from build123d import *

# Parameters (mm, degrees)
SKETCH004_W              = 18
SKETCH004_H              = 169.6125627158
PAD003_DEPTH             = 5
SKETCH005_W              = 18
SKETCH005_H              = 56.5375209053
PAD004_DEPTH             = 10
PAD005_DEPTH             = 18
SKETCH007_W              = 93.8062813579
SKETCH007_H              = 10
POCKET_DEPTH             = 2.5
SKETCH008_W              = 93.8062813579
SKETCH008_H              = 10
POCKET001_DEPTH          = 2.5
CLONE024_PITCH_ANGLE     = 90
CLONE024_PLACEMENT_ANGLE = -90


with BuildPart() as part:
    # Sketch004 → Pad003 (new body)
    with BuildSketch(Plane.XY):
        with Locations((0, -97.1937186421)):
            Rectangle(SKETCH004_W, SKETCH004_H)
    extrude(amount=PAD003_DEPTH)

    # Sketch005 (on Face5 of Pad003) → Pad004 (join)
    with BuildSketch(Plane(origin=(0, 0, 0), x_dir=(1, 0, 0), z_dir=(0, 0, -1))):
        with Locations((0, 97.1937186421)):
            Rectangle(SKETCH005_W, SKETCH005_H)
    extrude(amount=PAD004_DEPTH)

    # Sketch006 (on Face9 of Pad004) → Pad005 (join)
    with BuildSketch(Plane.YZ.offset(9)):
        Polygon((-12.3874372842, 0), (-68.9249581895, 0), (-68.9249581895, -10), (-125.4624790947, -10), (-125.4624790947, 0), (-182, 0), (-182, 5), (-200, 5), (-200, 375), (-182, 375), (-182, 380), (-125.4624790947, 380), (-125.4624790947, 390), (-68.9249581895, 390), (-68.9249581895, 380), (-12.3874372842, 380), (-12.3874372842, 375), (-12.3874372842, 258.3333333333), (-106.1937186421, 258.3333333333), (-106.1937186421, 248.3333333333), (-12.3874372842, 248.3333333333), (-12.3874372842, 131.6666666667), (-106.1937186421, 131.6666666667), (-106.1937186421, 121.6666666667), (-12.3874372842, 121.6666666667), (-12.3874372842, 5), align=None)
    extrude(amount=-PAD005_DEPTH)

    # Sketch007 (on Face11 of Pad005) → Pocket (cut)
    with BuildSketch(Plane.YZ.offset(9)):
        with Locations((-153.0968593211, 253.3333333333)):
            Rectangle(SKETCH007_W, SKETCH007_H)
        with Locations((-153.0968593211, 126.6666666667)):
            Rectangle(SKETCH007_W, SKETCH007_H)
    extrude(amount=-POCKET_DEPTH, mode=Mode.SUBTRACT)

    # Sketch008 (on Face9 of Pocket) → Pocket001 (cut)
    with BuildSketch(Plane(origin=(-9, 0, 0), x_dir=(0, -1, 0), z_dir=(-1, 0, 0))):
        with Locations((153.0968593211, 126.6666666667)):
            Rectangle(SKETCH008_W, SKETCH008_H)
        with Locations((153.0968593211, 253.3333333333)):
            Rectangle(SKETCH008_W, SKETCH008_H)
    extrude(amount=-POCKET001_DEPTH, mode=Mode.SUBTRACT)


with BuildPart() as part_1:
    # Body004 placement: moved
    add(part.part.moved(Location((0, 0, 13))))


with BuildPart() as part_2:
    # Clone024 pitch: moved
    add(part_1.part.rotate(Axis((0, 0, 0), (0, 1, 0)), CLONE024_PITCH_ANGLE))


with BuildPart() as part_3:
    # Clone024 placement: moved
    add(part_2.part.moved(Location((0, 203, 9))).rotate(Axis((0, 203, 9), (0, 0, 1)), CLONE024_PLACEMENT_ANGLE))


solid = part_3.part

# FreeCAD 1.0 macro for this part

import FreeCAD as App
import Part
import Sketcher


def add_polygon(sketch, points):
    """Adds a closed chain of lines whose ends are joined by coincident constraints."""
    first, n = sketch.GeometryCount, len(points)
    for a, b in zip(points, points[1:] + points[:1]):
        sketch.addGeometry(Part.LineSegment(App.Vector(*a, 0), App.Vector(*b, 0)), False)
    for i in range(n):
        sketch.addConstraint(Sketcher.Constraint("Coincident", first + i, 2, first + (i + 1) % n, 1))

doc = App.newDocument("Part")
body = doc.addObject("PartDesign::Body", "Body")

# Sketch on XY plane
sketch1 = doc.addObject("Sketcher::SketchObject", "Sketch")
body.addObject(sketch1)
sketch1.AttachmentSupport = (doc.XY_Plane, [""])
sketch1.MapMode = "FlatFace"
add_polygon(sketch1, [(-9, -12), (-9, -182), (9, -182), (9, -12)])  # lines 0-3
sketch1.addConstraint([
    Sketcher.Constraint("Vertical", 0),
    Sketcher.Constraint("Horizontal", 1),
    Sketcher.Constraint("Vertical", 2),
    Sketcher.Constraint("Horizontal", 3),
    Sketcher.Constraint("DistanceX", 1, 1, 1, 2, 18.0),
    Sketcher.Constraint("DistanceX", 0, 2, -1, 1, 9.0),
    Sketcher.Constraint("DistanceY", 0, 2, -1, 1, 182.0),
    Sketcher.Constraint("DistanceY", 0, 2, 0, 1, 169.612563),
])
pad1 = doc.addObject("PartDesign::Pad", "Pad")
body.addObject(pad1)
pad1.Profile = sketch1
pad1.Length = 5

# Sketch on XY plane
sketch2 = doc.addObject("Sketcher::SketchObject", "Sketch001")
body.addObject(sketch2)
sketch2.AttachmentSupport = (doc.XY_Plane, [""])
sketch2.MapMode = "FlatFace"
add_polygon(sketch2, [(-9, -125), (-9, -69), (9, -69), (9, -125)])  # lines 0-3
sketch2.addConstraint([
    Sketcher.Constraint("Vertical", 0),
    Sketcher.Constraint("Horizontal", 1),
    Sketcher.Constraint("Vertical", 2),
    Sketcher.Constraint("Horizontal", 3),
    Sketcher.Constraint("DistanceX", 1, 1, 1, 2, 18.0),
    Sketcher.Constraint("DistanceX", 0, 2, -1, 1, 9.0),
    Sketcher.Constraint("DistanceY", 0, 1, 0, 2, 56.537521),
    Sketcher.Constraint("DistanceY", 0, 2, -1, 1, 68.924958),
])
pad2 = doc.addObject("PartDesign::Pad", "Pad001")
body.addObject(pad2)
pad2.Profile = sketch2
pad2.Length = 10
pad2.Reversed = True

# Sketch on YZ plane
sketch3 = doc.addObject("Sketcher::SketchObject", "Sketch002")
body.addObject(sketch3)
sketch3.AttachmentSupport = (doc.YZ_Plane, [""])
sketch3.MapMode = "FlatFace"
sketch3.AttachmentOffset = App.Placement(App.Vector(0, 0, 9), App.Rotation())
add_polygon(sketch3, [(-69, 0), (-12, 0), (-12, 122), (-106, 122), (-106, 132), (-12, 132), (-12, 248), (-106, 248), (-106, 258), (-12, 258), (-12, 380), (-69, 380), (-69, 390), (-125, 390), (-125, 380), (-182, 380), (-182, 375), (-200, 375), (-200, 5), (-182, 5), (-182, 0), (-125, 0), (-125, -10), (-69, -10)])  # lines 0-23
sketch3.addConstraint([
    Sketcher.Constraint("Horizontal", 0),
    Sketcher.Constraint("Vertical", 1),
    Sketcher.Constraint("Horizontal", 2),
    Sketcher.Constraint("Vertical", 3),
    Sketcher.Constraint("Horizontal", 4),
    Sketcher.Constraint("Vertical", 5),
    Sketcher.Constraint("Horizontal", 6),
    Sketcher.Constraint("Vertical", 7),
    Sketcher.Constraint("Horizontal", 8),
    Sketcher.Constraint("Vertical", 9),
    Sketcher.Constraint("Horizontal", 10),
    Sketcher.Constraint("Vertical", 11),
    Sketcher.Constraint("Horizontal", 12),
    Sketcher.Constraint("Vertical", 13),
    Sketcher.Constraint("Horizontal", 14),
    Sketcher.Constraint("Vertical", 15),
    Sketcher.Constraint("Horizontal", 16),
    Sketcher.Constraint("Vertical", 17),
    Sketcher.Constraint("Horizontal", 18),
    Sketcher.Constraint("Vertical", 19),
    Sketcher.Constraint("Horizontal", 20),
    Sketcher.Constraint("Vertical", 21),
    Sketcher.Constraint("Horizontal", 22),
    Sketcher.Constraint("Vertical", 23),
    Sketcher.Constraint("PointOnObject", 0, 2, -1),
    Sketcher.Constraint("PointOnObject", 19, 2, -1),
    Sketcher.Constraint("Horizontal", 10, 2, 13, 2),
    Sketcher.Constraint("Vertical", 1, 2, 4, 2),
    Sketcher.Constraint("Vertical", 3, 2, 6, 2),
    Sketcher.Constraint("Vertical", 5, 2, 8, 2),
    Sketcher.Constraint("Vertical", 15, 2, 18, 2),
    Sketcher.Constraint("Vertical", 13, 2, 20, 2),
    Sketcher.Constraint("Vertical", 11, 2, 22, 2),
    Sketcher.Constraint("Equal", 10, 12),
    Sketcher.Constraint("Equal", 12, 14),
    Sketcher.Constraint("Equal", 3, 7),
    Sketcher.Constraint("Equal", 1, 9),
    Sketcher.Constraint("Equal", 7, 11),
    Sketcher.Constraint("Equal", 15, 19),
    Sketcher.Constraint("Equal", 13, 21),
    Sketcher.Constraint("DistanceX", 16, 2, 16, 1, 18.0),
    Sketcher.Constraint("DistanceY", 3, 1, 3, 2, 10.0),
    Sketcher.Constraint("DistanceY", 15, 2, 15, 1, 5.0),
    Sketcher.Constraint("DistanceY", 17, 2, 17, 1, 370.0),
    Sketcher.Constraint("DistanceX", 14, 2, -1, 1, 182.0),
    Sketcher.Constraint("DistanceX", 0, 1, 0, 2, 56.537521),
    Sketcher.Constraint("DistanceX", 2, 2, 2, 1, 93.806281),
    Sketcher.Constraint("DistanceY", 1, 1, 1, 2, 121.666667),
])
pad3 = doc.addObject("PartDesign::Pad", "Pad002")
body.addObject(pad3)
pad3.Profile = sketch3
pad3.Length = 18
pad3.Reversed = True

# Sketch on YZ plane
sketch4 = doc.addObject("Sketcher::SketchObject", "Sketch003")
body.addObject(sketch4)
sketch4.AttachmentSupport = (doc.YZ_Plane, [""])
sketch4.MapMode = "FlatFace"
sketch4.AttachmentOffset = App.Placement(App.Vector(0, 0, 9), App.Rotation())
add_polygon(sketch4, [(-200, 258), (-200, 248), (-106, 248), (-106, 258)])  # lines 0-3
add_polygon(sketch4, [(-200, 132), (-200, 122), (-106, 122), (-106, 132)])  # lines 4-7
sketch4.addConstraint([
    Sketcher.Constraint("Vertical", 0),
    Sketcher.Constraint("Horizontal", 1),
    Sketcher.Constraint("Vertical", 2),
    Sketcher.Constraint("Horizontal", 3),
    Sketcher.Constraint("Vertical", 4),
    Sketcher.Constraint("Horizontal", 5),
    Sketcher.Constraint("Vertical", 6),
    Sketcher.Constraint("Horizontal", 7),
    Sketcher.Constraint("Vertical", 3, 2, 4, 2),
    Sketcher.Constraint("Vertical", 2, 2, 5, 2),
    Sketcher.Constraint("Equal", 2, 4),
    Sketcher.Constraint("DistanceY", 0, 2, 0, 1, 10.0),
    Sketcher.Constraint("DistanceX", 0, 2, -1, 1, 200.0),
    Sketcher.Constraint("DistanceX", 1, 1, 1, 2, 93.806281),
    Sketcher.Constraint("DistanceY", -1, 1, 0, 2, 248.333333),
    Sketcher.Constraint("DistanceY", -1, 1, 4, 2, 121.666667),
])
pocket1 = doc.addObject("PartDesign::Pocket", "Pocket")
body.addObject(pocket1)
pocket1.Profile = sketch4
pocket1.Length = 2.5

# Sketch on YZ plane
sketch5 = doc.addObject("Sketcher::SketchObject", "Sketch004")
body.addObject(sketch5)
sketch5.AttachmentSupport = (doc.YZ_Plane, [""])
sketch5.MapMode = "FlatFace"
sketch5.AttachmentOffset = App.Placement(App.Vector(0, 0, -9), App.Rotation())
add_polygon(sketch5, [(-106, 132), (-106, 122), (-200, 122), (-200, 132)])  # lines 0-3
add_polygon(sketch5, [(-106, 258), (-106, 248), (-200, 248), (-200, 258)])  # lines 4-7
sketch5.addConstraint([
    Sketcher.Constraint("Vertical", 0),
    Sketcher.Constraint("Horizontal", 1),
    Sketcher.Constraint("Vertical", 2),
    Sketcher.Constraint("Horizontal", 3),
    Sketcher.Constraint("Vertical", 4),
    Sketcher.Constraint("Horizontal", 5),
    Sketcher.Constraint("Vertical", 6),
    Sketcher.Constraint("Horizontal", 7),
    Sketcher.Constraint("Vertical", 3, 2, 4, 2),
    Sketcher.Constraint("Vertical", 2, 2, 5, 2),
    Sketcher.Constraint("Equal", 2, 4),
    Sketcher.Constraint("DistanceY", 0, 2, 0, 1, 10.0),
    Sketcher.Constraint("DistanceX", 1, 2, -1, 1, 200.0),
    Sketcher.Constraint("DistanceX", 1, 2, 1, 1, 93.806281),
    Sketcher.Constraint("DistanceY", -1, 1, 0, 2, 121.666667),
    Sketcher.Constraint("DistanceY", -1, 1, 4, 2, 248.333333),
])
pocket2 = doc.addObject("PartDesign::Pocket", "Pocket001")
body.addObject(pocket2)
pocket2.Profile = sketch5
pocket2.Length = 2.5
pocket2.Reversed = True
body2 = doc.addObject("PartDesign::Body", "Body001")
doc.recompute()

body.Placement = App.Placement(App.Vector(0, 0, 13), App.Rotation(App.Vector(0, 0, 1), 0))
boolean = doc.addObject("PartDesign::Boolean", "Boolean")
body2.addObject(boolean)
boolean.Type = "Fuse"
boolean.addObjects([body])
body3 = doc.addObject("PartDesign::Body", "Body002")
doc.recompute()

body2.Placement = App.Placement(App.Vector(0, 0, 0), App.Rotation(App.Vector(0, 1, 0), 90))
boolean2 = doc.addObject("PartDesign::Boolean", "Boolean001")
body3.addObject(boolean2)
boolean2.Type = "Fuse"
boolean2.addObjects([body2])
body4 = doc.addObject("PartDesign::Body", "Body003")
doc.recompute()

body3.Placement = App.Placement(App.Vector(0, 203, 9), App.Rotation(App.Vector(0, 0, 1), 270))
boolean3 = doc.addObject("PartDesign::Boolean", "Boolean002")
body4.addObject(boolean3)
boolean3.Type = "Fuse"
boolean3.addObjects([body3])

doc.recompute()
